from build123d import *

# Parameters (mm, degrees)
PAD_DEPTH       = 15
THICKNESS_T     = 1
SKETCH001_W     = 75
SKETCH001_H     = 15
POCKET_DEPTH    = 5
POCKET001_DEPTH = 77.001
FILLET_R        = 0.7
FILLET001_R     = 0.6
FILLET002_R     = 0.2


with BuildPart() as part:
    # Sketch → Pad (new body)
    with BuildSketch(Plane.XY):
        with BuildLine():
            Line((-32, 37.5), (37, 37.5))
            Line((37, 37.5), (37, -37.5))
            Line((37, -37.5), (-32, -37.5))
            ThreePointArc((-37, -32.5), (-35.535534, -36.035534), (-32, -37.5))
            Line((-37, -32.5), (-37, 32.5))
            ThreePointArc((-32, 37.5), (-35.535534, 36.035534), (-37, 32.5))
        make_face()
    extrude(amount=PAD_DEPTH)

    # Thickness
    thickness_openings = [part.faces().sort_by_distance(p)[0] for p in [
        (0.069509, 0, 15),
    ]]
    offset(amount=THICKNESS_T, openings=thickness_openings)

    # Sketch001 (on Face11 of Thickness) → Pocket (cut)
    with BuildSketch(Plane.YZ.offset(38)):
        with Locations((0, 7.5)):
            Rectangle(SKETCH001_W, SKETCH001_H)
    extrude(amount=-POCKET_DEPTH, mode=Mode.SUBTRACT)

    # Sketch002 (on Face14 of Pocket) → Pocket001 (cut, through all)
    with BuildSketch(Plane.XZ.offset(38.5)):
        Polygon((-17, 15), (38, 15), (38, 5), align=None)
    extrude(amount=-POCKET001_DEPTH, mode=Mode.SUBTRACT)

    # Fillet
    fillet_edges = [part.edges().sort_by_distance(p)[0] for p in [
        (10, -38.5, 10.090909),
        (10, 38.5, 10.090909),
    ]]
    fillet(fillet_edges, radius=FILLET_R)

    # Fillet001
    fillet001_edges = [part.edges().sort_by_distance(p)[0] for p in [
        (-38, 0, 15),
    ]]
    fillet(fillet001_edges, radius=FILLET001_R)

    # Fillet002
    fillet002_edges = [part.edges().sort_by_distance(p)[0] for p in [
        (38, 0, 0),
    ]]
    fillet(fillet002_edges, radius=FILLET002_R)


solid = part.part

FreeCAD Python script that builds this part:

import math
import FreeCAD as App
import Part
import Sketcher

V = App.Vector


def edges_at(feature, points):
    """Names of the edges that pass closest to the given points."""
    edges = feature.Shape.Edges
    near = lambda p: min(range(len(edges)), key=lambda i: edges[i].distToShape(Part.Vertex(*p))[0])
    return sorted({f"Edge{near(p) + 1}" for p in points})


def faces_at(feature, points):
    """Names of the faces that lie closest to the given points."""
    faces = feature.Shape.Faces
    near = lambda p: min(range(len(faces)), key=lambda i: faces[i].distToShape(Part.Vertex(*p))[0])
    return sorted({f"Face{near(p) + 1}" for p in points})


def add_polygon(sketch, points):
    """Adds a closed chain of lines whose ends are joined by coincident constraints."""
    first, n = sketch.GeometryCount, len(points)
    for a, b in zip(points, points[1:] + points[:1]):
        sketch.addGeometry(Part.LineSegment(App.Vector(*a, 0), App.Vector(*b, 0)), False)
    for i in range(n):
        sketch.addConstraint(Sketcher.Constraint("Coincident", first + i, 2, first + (i + 1) % n, 1))

doc = App.newDocument("Part")
body = doc.addObject("PartDesign::Body", "Body")

sketch1 = body.newObject("Sketcher::SketchObject", "Sketch")
sketch1.AttachmentSupport = (doc.getObject("XY_Plane"), [""])
sketch1.MapMode = "FlatFace"
sketch1.addGeometry([
    Part.LineSegment(V(37, 37.5, 0), V(-32, 37.5, 0)),
    Part.ArcOfCircle(Part.Circle(V(-32, 32.5, 0), V(0, 0, 1), 5), math.radians(90), math.radians(180)),
    Part.LineSegment(V(-37, 32.5, 0), V(-37, -32.5, 0)),
    Part.ArcOfCircle(Part.Circle(V(-32, -32.5, 0), V(0, 0, 1), 5), math.radians(180), math.radians(270)),
    Part.LineSegment(V(-32, -37.5, 0), V(37, -37.5, 0)),
    Part.LineSegment(V(37, -37.5, 0), V(37, 37.5, 0)),
], False)
sketch1.addConstraint([
    Sketcher.Constraint("Tangent", 0, 2, 1, 1),
    Sketcher.Constraint("Tangent", 1, 2, 2, 1),
    Sketcher.Constraint("Tangent", 2, 2, 3, 1),
    Sketcher.Constraint("Tangent", 3, 2, 4, 1),
    Sketcher.Constraint("Coincident", 4, 2, 5, 1),
    Sketcher.Constraint("Coincident", 5, 2, 0, 1),
    Sketcher.Constraint("Horizontal", 0),
    Sketcher.Constraint("Vertical", 2),
    Sketcher.Constraint("Horizontal", 4),
    Sketcher.Constraint("Vertical", 5),
    Sketcher.Constraint("Equal", 1, 3),
    Sketcher.Constraint("Radius", 1, 5.0),
    Sketcher.Constraint("DistanceX", 0, 2, 0, 1, 69.0),
    Sketcher.Constraint("DistanceY", 2, 2, 2, 1, 65.0),
    Sketcher.Constraint("DistanceX", 1, 3, -1, 1, 32.0),
    Sketcher.Constraint("DistanceY", -1, 1, 1, 3, 32.5),
])
pad1 = body.newObject("PartDesign::Pad", "Pad")
pad1.Profile = sketch1
pad1.Length = 15
doc.recompute()

thickness = body.newObject("PartDesign::Thickness", "Thickness")
thickness.Base = (pad1, faces_at(pad1, [(0, 0, 15)]))
thickness.Value = 1
thickness.Reversed = False
thickness.Join = "Arc"

sketch2 = body.newObject("Sketcher::SketchObject", "Sketch001")
sketch2.AttachmentSupport = (doc.getObject("YZ_Plane"), [""])
sketch2.MapMode = "FlatFace"
sketch2.AttachmentOffset = App.Placement(V(0, 0, 38), App.Rotation())
add_polygon(sketch2, [(-38, 15), (-38, 0), (38, 0), (38, 15)])
sketch2.addConstraint([
    Sketcher.Constraint("Vertical", 0),
    Sketcher.Constraint("Horizontal", 1),
    Sketcher.Constraint("Vertical", 2),
    Sketcher.Constraint("Horizontal", 3),
    Sketcher.Constraint("Symmetric", 0, 2, 1, 2, -1, 1),
    Sketcher.Constraint("DistanceX", 1, 1, 1, 2, 75.0),
    Sketcher.Constraint("DistanceY", 0, 2, 0, 1, 15.0),
])
pocket1 = body.newObject("PartDesign::Pocket", "Pocket")
pocket1.Profile = sketch2
pocket1.Length = 5

sketch3 = body.newObject("Sketcher::SketchObject", "Sketch002")
sketch3.AttachmentSupport = (doc.getObject("XZ_Plane"), [""])
sketch3.MapMode = "FlatFace"
sketch3.AttachmentOffset = App.Placement(V(0, 0, 38.5), App.Rotation())
add_polygon(sketch3, [(38, 15), (-17, 15), (38, 5)])
sketch3.addConstraint([
    Sketcher.Constraint("Horizontal", 0),
    Sketcher.Constraint("Vertical", 2),
    Sketcher.Constraint("DistanceX", 0, 2, 0, 1, 55.0),
    Sketcher.Constraint("DistanceY", 2, 1, 2, 2, 10.0),
    Sketcher.Constraint("DistanceX", 0, 2, -1, 1, 17.0),
    Sketcher.Constraint("DistanceY", -1, 1, 0, 2, 15.0),
])
pocket2 = body.newObject("PartDesign::Pocket", "Pocket001")
pocket2.Profile = sketch3
pocket2.Type = "ThroughAll"
doc.recompute()

fillet = body.newObject("PartDesign::Fillet", "Fillet")
fillet.Base = (pocket2, edges_at(pocket2, [(10, -38.5, 10.091), (10, 38.5, 10.091)]))
fillet.Radius = 0.7
doc.recompute()

fillet2 = body.newObject("PartDesign::Fillet", "Fillet001")
fillet2.Base = (fillet, edges_at(fillet, [(-38, 0, 15)]))
fillet2.Radius = 0.6
doc.recompute()

fillet3 = body.newObject("PartDesign::Fillet", "Fillet002")
fillet3.Base = (fillet2, edges_at(fillet2, [(38, 0, 0)]))
fillet3.Radius = 0.2

doc.recompute()
